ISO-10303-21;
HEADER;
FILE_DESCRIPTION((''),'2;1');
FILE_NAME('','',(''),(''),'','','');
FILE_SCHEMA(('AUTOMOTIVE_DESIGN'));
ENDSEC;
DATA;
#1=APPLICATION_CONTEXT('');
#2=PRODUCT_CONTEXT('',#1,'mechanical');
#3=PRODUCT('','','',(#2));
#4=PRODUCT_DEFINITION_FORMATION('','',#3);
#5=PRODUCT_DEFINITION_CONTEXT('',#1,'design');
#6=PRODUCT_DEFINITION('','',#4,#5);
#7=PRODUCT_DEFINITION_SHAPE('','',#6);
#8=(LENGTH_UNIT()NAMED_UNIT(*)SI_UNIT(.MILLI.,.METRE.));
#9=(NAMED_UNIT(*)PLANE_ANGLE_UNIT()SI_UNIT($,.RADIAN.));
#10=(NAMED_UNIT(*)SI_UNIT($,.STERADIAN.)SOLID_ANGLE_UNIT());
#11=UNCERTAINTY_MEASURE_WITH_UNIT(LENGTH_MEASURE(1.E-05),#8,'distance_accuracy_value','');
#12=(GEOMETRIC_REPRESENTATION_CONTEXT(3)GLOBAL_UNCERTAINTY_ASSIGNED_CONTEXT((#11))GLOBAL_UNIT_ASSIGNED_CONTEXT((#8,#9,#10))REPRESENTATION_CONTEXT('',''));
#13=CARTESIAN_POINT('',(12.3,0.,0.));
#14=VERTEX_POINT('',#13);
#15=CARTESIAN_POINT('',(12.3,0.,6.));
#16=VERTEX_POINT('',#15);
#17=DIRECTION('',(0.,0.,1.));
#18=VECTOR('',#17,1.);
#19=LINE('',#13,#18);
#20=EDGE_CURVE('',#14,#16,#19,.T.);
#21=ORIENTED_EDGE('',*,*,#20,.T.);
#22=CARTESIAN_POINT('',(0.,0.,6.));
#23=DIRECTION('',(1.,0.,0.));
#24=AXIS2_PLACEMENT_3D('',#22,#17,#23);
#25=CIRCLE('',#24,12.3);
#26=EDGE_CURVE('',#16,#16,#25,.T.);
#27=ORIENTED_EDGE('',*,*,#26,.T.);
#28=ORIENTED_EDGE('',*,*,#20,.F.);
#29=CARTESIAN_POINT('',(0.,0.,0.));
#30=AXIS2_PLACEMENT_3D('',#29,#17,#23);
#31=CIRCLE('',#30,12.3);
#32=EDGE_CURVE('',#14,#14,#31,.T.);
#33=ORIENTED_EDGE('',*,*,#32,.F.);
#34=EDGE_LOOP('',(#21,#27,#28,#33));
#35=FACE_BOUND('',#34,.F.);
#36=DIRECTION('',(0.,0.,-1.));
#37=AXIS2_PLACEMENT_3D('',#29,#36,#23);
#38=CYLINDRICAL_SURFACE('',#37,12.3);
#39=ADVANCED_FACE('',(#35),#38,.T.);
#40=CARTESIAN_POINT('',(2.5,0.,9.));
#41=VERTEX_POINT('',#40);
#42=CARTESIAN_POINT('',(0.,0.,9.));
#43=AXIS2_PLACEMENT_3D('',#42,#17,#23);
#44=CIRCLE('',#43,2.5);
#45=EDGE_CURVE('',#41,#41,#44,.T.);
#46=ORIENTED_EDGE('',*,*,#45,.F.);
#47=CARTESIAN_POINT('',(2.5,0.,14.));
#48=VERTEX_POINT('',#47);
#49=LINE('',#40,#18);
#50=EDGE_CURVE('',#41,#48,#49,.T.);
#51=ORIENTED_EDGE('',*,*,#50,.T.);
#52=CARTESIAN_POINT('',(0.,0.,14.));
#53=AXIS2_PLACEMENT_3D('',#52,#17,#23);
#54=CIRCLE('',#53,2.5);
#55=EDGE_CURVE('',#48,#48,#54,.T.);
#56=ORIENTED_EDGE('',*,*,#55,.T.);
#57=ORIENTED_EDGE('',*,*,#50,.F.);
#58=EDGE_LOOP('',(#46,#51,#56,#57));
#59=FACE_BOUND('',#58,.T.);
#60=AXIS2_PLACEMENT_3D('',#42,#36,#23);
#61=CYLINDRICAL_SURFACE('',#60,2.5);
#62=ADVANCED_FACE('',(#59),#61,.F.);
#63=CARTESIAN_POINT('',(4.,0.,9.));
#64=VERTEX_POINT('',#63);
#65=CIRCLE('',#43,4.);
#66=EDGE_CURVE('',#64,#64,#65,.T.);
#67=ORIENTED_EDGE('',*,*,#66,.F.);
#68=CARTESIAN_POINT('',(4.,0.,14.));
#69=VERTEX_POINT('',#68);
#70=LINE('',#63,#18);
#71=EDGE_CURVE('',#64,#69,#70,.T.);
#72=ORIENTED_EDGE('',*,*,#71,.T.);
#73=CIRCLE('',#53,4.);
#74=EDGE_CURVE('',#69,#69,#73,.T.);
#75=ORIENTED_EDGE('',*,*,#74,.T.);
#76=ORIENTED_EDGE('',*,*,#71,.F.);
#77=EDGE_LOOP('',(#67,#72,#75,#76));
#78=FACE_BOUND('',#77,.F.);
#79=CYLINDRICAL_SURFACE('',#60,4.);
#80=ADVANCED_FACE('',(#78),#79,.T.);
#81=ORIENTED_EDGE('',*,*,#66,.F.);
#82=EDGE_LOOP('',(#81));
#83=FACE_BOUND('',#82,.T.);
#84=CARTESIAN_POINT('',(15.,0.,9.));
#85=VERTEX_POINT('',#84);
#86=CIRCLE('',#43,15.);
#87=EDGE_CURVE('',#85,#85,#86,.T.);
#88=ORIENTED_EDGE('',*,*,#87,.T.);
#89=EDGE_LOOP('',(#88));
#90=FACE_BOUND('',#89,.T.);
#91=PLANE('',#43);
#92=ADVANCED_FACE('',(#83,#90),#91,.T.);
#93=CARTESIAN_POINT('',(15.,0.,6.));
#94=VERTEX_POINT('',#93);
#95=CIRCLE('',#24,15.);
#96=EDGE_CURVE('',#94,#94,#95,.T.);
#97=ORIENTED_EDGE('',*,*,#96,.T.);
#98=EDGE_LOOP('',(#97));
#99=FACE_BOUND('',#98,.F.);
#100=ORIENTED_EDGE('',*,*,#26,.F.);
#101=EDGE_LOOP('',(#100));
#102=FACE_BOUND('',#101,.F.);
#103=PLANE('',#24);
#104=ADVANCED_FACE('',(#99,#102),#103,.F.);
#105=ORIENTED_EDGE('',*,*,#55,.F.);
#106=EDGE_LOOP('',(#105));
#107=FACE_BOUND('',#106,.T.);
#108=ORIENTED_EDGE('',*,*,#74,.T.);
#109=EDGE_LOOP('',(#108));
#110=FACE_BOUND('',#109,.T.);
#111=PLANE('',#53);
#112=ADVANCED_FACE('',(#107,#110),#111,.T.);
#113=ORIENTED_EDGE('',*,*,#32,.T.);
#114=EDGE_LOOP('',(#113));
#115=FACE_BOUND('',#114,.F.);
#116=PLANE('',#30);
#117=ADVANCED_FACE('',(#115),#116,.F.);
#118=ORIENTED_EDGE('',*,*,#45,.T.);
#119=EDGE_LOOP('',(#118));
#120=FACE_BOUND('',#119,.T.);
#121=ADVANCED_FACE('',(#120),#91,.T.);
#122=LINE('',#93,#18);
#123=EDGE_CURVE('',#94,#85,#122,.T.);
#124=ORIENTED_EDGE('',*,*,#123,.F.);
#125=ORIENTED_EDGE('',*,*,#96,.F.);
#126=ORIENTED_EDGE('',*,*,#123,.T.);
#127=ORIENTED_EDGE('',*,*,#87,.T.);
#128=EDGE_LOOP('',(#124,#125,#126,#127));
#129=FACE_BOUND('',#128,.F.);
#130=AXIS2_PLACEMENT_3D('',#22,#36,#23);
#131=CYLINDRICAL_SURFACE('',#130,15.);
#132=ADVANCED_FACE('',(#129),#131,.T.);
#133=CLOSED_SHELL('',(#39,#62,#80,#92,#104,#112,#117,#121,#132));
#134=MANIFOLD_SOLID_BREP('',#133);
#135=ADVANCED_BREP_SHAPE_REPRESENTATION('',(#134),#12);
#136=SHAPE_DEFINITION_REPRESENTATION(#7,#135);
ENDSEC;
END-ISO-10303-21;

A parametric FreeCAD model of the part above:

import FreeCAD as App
import Part
import Sketcher
from FreeCAD import Vector

doc = App.newDocument("Part")
body = doc.addObject("PartDesign::Body", "Body")

sketch1 = body.newObject("Sketcher::SketchObject", "Sketch")
sketch1.AttachmentSupport = (doc.getObject("XY_Plane"), [""])
sketch1.MapMode = "FlatFace"
sketch1.addGeometry(Part.Circle(Vector(0, 0, 0), Vector(0, 0, 1), 12), False)
sketch1.addConstraint([
    Sketcher.Constraint("Coincident", 0, 3, -1, 1),
    Sketcher.Constraint("Diameter", 0, 24.6),
])
pad1 = body.newObject("PartDesign::Pad", "Pad")
pad1.Profile = sketch1
pad1.Length = 6

sketch2 = body.newObject("Sketcher::SketchObject", "Sketch001")
sketch2.AttachmentSupport = (doc.getObject("XY_Plane"), [""])
sketch2.MapMode = "FlatFace"
sketch2.AttachmentOffset = App.Placement(Vector(0, 0, 6), App.Rotation())
sketch2.addGeometry(Part.Circle(Vector(0, 0, 0), Vector(0, 0, 1), 15), False)
sketch2.addConstraint([
    Sketcher.Constraint("Coincident", 0, 3, -1, 1),
    Sketcher.Constraint("Diameter", 0, 30.0),
])
pad2 = body.newObject("PartDesign::Pad", "Pad001")
pad2.Profile = sketch2
pad2.Length = 3

sketch3 = body.newObject("Sketcher::SketchObject", "Sketch002")
sketch3.AttachmentSupport = (doc.getObject("XY_Plane"), [""])
sketch3.MapMode = "FlatFace"
sketch3.AttachmentOffset = App.Placement(Vector(0, 0, 9), App.Rotation())
sketch3.addGeometry([
    Part.Circle(Vector(0, 0, 0), Vector(0, 0, 1), 4),
    Part.Circle(Vector(0, 0, 0), Vector(0, 0, 1), 2.5),
], False)
sketch3.addConstraint([
    Sketcher.Constraint("Coincident", 0, 3, -1, 1),
    Sketcher.Constraint("Coincident", 1, 3, -1, 1),
    Sketcher.Constraint("Diameter", 0, 8.0),
    Sketcher.Constraint("Diameter", 1, 5.0),
])
pad3 = body.newObject("PartDesign::Pad", "Pad002")
pad3.Profile = sketch3
pad3.Length = 5

doc.recompute()
